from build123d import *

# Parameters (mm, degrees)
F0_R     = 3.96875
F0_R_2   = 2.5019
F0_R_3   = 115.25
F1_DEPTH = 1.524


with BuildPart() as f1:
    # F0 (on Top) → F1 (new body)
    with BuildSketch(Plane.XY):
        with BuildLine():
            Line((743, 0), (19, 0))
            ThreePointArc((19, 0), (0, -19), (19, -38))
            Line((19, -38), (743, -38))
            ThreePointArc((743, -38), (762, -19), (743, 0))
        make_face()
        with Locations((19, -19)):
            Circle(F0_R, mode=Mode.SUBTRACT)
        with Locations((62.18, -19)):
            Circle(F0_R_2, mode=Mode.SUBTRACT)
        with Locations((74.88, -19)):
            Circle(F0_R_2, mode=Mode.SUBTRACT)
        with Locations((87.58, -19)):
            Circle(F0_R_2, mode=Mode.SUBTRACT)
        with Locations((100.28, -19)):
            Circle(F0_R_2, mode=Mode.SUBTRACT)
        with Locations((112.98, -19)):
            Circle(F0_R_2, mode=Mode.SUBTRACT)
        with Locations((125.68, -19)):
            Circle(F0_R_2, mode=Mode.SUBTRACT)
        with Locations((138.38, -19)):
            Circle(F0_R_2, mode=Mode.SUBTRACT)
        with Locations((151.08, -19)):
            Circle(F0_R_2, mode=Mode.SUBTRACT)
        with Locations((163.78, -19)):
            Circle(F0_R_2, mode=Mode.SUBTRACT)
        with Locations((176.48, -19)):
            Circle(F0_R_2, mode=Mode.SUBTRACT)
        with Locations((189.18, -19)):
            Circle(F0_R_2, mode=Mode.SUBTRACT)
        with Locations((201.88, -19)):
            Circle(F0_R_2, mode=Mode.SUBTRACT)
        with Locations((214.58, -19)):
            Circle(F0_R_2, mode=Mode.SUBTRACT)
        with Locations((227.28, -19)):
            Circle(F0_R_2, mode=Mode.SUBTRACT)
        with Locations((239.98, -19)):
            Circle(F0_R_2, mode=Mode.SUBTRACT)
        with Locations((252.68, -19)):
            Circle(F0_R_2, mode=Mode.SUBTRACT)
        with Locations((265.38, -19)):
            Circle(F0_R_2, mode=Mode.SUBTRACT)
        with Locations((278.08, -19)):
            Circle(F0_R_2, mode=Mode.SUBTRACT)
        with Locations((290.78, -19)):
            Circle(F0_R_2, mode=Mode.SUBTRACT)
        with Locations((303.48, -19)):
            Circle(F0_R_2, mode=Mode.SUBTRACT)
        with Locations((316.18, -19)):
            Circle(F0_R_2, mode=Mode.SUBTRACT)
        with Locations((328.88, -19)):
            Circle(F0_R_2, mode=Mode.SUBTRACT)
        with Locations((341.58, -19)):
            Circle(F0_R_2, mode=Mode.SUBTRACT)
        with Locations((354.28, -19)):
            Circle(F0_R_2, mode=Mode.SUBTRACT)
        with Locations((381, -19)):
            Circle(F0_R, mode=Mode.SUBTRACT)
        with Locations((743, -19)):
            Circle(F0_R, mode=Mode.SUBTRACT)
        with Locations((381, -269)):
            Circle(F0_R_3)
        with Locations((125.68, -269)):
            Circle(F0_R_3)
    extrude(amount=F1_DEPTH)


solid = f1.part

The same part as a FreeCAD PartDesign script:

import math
import FreeCAD as App
import Part
import Sketcher

V = App.Vector
Q = App.Units.Quantity

doc = App.newDocument("Part")
body = doc.addObject("PartDesign::Body", "Body")
body.AllowCompound = True

sketch1 = body.newObject("Sketcher::SketchObject", "Sketch")
sketch1.AttachmentSupport = (doc.getObject("XY_Plane"), [""])
sketch1.MapMode = "FlatFace"
sketch1.addGeometry([
    Part.LineSegment(V(743, 0, 0), V(19, 0, 0)),
    Part.ArcOfCircle(Part.Circle(V(19, -19, 0), V(0, 0, 1), 19), math.radians(90), math.radians(270)),
    Part.LineSegment(V(19, -38, 0), V(743, -38, 0)),
    Part.ArcOfCircle(Part.Circle(V(743, -19, 0), V(0, 0, 1), 19), math.radians(-90), math.radians(90)),
    Part.Circle(V(19, -19, 0), V(0, 0, 1), 4),
    Part.Circle(V(62.2, -19, 0), V(0, 0, 1), 2.5),
    Part.Circle(V(74.9, -19, 0), V(0, 0, 1), 2.5),
    Part.Circle(V(87.6, -19, 0), V(0, 0, 1), 2.5),
    Part.Circle(V(100.3, -19, 0), V(0, 0, 1), 2.5),
    Part.Circle(V(113, -19, 0), V(0, 0, 1), 2.5),
    Part.Circle(V(125.7, -19, 0), V(0, 0, 1), 2.5),
    Part.Circle(V(138.4, -19, 0), V(0, 0, 1), 2.5),
    Part.Circle(V(151.1, -19, 0), V(0, 0, 1), 2.5),
    Part.Circle(V(163.8, -19, 0), V(0, 0, 1), 2.5),
    Part.Circle(V(176.5, -19, 0), V(0, 0, 1), 2.5),
    Part.Circle(V(189.2, -19, 0), V(0, 0, 1), 2.5),
    Part.Circle(V(201.9, -19, 0), V(0, 0, 1), 2.5),
    Part.Circle(V(214.6, -19, 0), V(0, 0, 1), 2.5),
    Part.Circle(V(227.3, -19, 0), V(0, 0, 1), 2.5),
    Part.Circle(V(240, -19, 0), V(0, 0, 1), 2.5),
    Part.Circle(V(252.7, -19, 0), V(0, 0, 1), 2.5),
    Part.Circle(V(265.4, -19, 0), V(0, 0, 1), 2.5),
    Part.Circle(V(278.1, -19, 0), V(0, 0, 1), 2.5),
    Part.Circle(V(290.8, -19, 0), V(0, 0, 1), 2.5),
    Part.Circle(V(303.5, -19, 0), V(0, 0, 1), 2.5),
    Part.Circle(V(316.2, -19, 0), V(0, 0, 1), 2.5),
    Part.Circle(V(328.9, -19, 0), V(0, 0, 1), 2.5),
    Part.Circle(V(341.6, -19, 0), V(0, 0, 1), 2.5),
    Part.Circle(V(354.3, -19, 0), V(0, 0, 1), 2.5),
    Part.Circle(V(381, -19, 0), V(0, 0, 1), 4),
    Part.Circle(V(743, -19, 0), V(0, 0, 1), 4),
    Part.Circle(V(381, -269, 0), V(0, 0, 1), 115.2),
    Part.Circle(V(125.7, -269, 0), V(0, 0, 1), 115.2),
], False)
sketch1.addConstraint([
    Sketcher.Constraint("Tangent", 0, 2, 1, 1),
    Sketcher.Constraint("Tangent", 1, 2, 2, 1),
    Sketcher.Constraint("Tangent", 2, 2, 3, 1),
    Sketcher.Constraint("Tangent", 3, 2, 0, 1),
    Sketcher.Constraint("Horizontal", 0),
    Sketcher.Constraint("Horizontal", 2),
    Sketcher.Constraint("Coincident", 4, 3, 1, 3),
    Sketcher.Constraint("Coincident", 30, 3, 3, 3),
    Sketcher.Constraint("Equal", 5, 6),
    Sketcher.Constraint("Equal", 6, 7),
    Sketcher.Constraint("Equal", 7, 8),
    Sketcher.Constraint("Equal", 8, 9),
    Sketcher.Constraint("Equal", 9, 10),
    Sketcher.Constraint("Equal", 10, 11),
    Sketcher.Constraint("Equal", 11, 12),
    Sketcher.Constraint("Equal", 12, 13),
    Sketcher.Constraint("Equal", 13, 14),
    Sketcher.Constraint("Equal", 14, 15),
    Sketcher.Constraint("Equal", 15, 16),
    Sketcher.Constraint("Equal", 16, 17),
    Sketcher.Constraint("Equal", 17, 18),
    Sketcher.Constraint("Equal", 18, 19),
    Sketcher.Constraint("Equal", 19, 20),
    Sketcher.Constraint("Equal", 20, 21),
    Sketcher.Constraint("Equal", 21, 22),
    Sketcher.Constraint("Equal", 22, 23),
    Sketcher.Constraint("Equal", 23, 24),
    Sketcher.Constraint("Equal", 24, 25),
    Sketcher.Constraint("Equal", 25, 26),
    Sketcher.Constraint("Equal", 26, 27),
    Sketcher.Constraint("Equal", 27, 28),
    Sketcher.Constraint("Equal", 4, 29),
    Sketcher.Constraint("Equal", 29, 30),
    Sketcher.Constraint("Equal", 31, 32),
    Sketcher.Constraint("PointOnObject", 0, 2, -1),
    Sketcher.Constraint("Horizontal", 4, 3, 5, 3),
    Sketcher.Constraint("Horizontal", 5, 3, 6, 3),
    Sketcher.Constraint("Horizontal", 6, 3, 7, 3),
    Sketcher.Constraint("Horizontal", 7, 3, 8, 3),
    Sketcher.Constraint("Horizontal", 8, 3, 9, 3),
    Sketcher.Constraint("Horizontal", 9, 3, 10, 3),
    Sketcher.Constraint("Horizontal", 10, 3, 11, 3),
    Sketcher.Constraint("Horizontal", 11, 3, 12, 3),
    Sketcher.Constraint("Horizontal", 12, 3, 13, 3),
    Sketcher.Constraint("Horizontal", 13, 3, 14, 3),
    Sketcher.Constraint("Horizontal", 14, 3, 15, 3),
    Sketcher.Constraint("Horizontal", 15, 3, 16, 3),
    Sketcher.Constraint("Horizontal", 16, 3, 17, 3),
    Sketcher.Constraint("Horizontal", 17, 3, 18, 3),
    Sketcher.Constraint("Horizontal", 18, 3, 19, 3),
    Sketcher.Constraint("Horizontal", 19, 3, 20, 3),
    Sketcher.Constraint("Horizontal", 20, 3, 21, 3),
    Sketcher.Constraint("Horizontal", 21, 3, 22, 3),
    Sketcher.Constraint("Horizontal", 22, 3, 23, 3),
    Sketcher.Constraint("Horizontal", 23, 3, 24, 3),
    Sketcher.Constraint("Horizontal", 24, 3, 25, 3),
    Sketcher.Constraint("Horizontal", 25, 3, 26, 3),
    Sketcher.Constraint("Horizontal", 26, 3, 27, 3),
    Sketcher.Constraint("Horizontal", 27, 3, 28, 3),
    Sketcher.Constraint("Horizontal", 28, 3, 29, 3),
    Sketcher.Constraint("Horizontal", 31, 3, 32, 3),
    Sketcher.Constraint("Vertical", 29, 3, 31, 3),
    Sketcher.Constraint("Vertical", 10, 3, 32, 3),
    Sketcher.Constraint("Radius", 1, Q("19 mm")),
    Sketcher.Constraint("Diameter", 31, Q("230.5 mm")),
    Sketcher.Constraint("DistanceX", 0, 2, 0, 1, Q("724 mm")),
    Sketcher.Constraint("DistanceX", -1, 1, 1, 3, Q("19 mm")),
    Sketcher.Constraint("DistanceX", -1, 1, 29, 3, Q("381 mm")),
    Sketcher.Constraint("DistanceY", 31, 3, -1, 1, Q("269 mm")),
    Sketcher.Constraint("Diameter", 4, Q("7.9375 mm")),
    Sketcher.Constraint("Diameter", 5, Q("5.0038 mm")),
    Sketcher.Constraint("DistanceX", 5, 3, 6, 3, Q("12.7 mm")),
    Sketcher.Constraint("DistanceX", 6, 3, 7, 3, Q("12.7 mm")),
    Sketcher.Constraint("DistanceX", 7, 3, 8, 3, Q("12.7 mm")),
    Sketcher.Constraint("DistanceX", 8, 3, 9, 3, Q("12.7 mm")),
    Sketcher.Constraint("DistanceX", 9, 3, 10, 3, Q("12.7 mm")),
    Sketcher.Constraint("DistanceX", 10, 3, 11, 3, Q("12.7 mm")),
    Sketcher.Constraint("DistanceX", 11, 3, 12, 3, Q("12.7 mm")),
    Sketcher.Constraint("DistanceX", 12, 3, 13, 3, Q("12.7 mm")),
    Sketcher.Constraint("DistanceX", 13, 3, 14, 3, Q("12.7 mm")),
    Sketcher.Constraint("DistanceX", 14, 3, 15, 3, Q("12.7 mm")),
    Sketcher.Constraint("DistanceX", 15, 3, 16, 3, Q("12.7 mm")),
    Sketcher.Constraint("DistanceX", 16, 3, 17, 3, Q("12.7 mm")),
    Sketcher.Constraint("DistanceX", 17, 3, 18, 3, Q("12.7 mm")),
    Sketcher.Constraint("DistanceX", 18, 3, 19, 3, Q("12.7 mm")),
    Sketcher.Constraint("DistanceX", 19, 3, 20, 3, Q("12.7 mm")),
    Sketcher.Constraint("DistanceX", 20, 3, 21, 3, Q("12.7 mm")),
    Sketcher.Constraint("DistanceX", 21, 3, 22, 3, Q("12.7 mm")),
    Sketcher.Constraint("DistanceX", 22, 3, 23, 3, Q("12.7 mm")),
    Sketcher.Constraint("DistanceX", 23, 3, 24, 3, Q("12.7 mm")),
    Sketcher.Constraint("DistanceX", 24, 3, 25, 3, Q("12.7 mm")),
    Sketcher.Constraint("DistanceX", 25, 3, 26, 3, Q("12.7 mm")),
    Sketcher.Constraint("DistanceX", 26, 3, 27, 3, Q("12.7 mm")),
    Sketcher.Constraint("DistanceX", 27, 3, 28, 3, Q("12.7 mm")),
    Sketcher.Constraint("DistanceX", -1, 1, 5, 3, Q("62.18 mm")),
])
pad1 = body.newObject("PartDesign::Pad", "Pad")
pad1.Profile = sketch1
pad1.Length = 1.524

doc.recompute()
